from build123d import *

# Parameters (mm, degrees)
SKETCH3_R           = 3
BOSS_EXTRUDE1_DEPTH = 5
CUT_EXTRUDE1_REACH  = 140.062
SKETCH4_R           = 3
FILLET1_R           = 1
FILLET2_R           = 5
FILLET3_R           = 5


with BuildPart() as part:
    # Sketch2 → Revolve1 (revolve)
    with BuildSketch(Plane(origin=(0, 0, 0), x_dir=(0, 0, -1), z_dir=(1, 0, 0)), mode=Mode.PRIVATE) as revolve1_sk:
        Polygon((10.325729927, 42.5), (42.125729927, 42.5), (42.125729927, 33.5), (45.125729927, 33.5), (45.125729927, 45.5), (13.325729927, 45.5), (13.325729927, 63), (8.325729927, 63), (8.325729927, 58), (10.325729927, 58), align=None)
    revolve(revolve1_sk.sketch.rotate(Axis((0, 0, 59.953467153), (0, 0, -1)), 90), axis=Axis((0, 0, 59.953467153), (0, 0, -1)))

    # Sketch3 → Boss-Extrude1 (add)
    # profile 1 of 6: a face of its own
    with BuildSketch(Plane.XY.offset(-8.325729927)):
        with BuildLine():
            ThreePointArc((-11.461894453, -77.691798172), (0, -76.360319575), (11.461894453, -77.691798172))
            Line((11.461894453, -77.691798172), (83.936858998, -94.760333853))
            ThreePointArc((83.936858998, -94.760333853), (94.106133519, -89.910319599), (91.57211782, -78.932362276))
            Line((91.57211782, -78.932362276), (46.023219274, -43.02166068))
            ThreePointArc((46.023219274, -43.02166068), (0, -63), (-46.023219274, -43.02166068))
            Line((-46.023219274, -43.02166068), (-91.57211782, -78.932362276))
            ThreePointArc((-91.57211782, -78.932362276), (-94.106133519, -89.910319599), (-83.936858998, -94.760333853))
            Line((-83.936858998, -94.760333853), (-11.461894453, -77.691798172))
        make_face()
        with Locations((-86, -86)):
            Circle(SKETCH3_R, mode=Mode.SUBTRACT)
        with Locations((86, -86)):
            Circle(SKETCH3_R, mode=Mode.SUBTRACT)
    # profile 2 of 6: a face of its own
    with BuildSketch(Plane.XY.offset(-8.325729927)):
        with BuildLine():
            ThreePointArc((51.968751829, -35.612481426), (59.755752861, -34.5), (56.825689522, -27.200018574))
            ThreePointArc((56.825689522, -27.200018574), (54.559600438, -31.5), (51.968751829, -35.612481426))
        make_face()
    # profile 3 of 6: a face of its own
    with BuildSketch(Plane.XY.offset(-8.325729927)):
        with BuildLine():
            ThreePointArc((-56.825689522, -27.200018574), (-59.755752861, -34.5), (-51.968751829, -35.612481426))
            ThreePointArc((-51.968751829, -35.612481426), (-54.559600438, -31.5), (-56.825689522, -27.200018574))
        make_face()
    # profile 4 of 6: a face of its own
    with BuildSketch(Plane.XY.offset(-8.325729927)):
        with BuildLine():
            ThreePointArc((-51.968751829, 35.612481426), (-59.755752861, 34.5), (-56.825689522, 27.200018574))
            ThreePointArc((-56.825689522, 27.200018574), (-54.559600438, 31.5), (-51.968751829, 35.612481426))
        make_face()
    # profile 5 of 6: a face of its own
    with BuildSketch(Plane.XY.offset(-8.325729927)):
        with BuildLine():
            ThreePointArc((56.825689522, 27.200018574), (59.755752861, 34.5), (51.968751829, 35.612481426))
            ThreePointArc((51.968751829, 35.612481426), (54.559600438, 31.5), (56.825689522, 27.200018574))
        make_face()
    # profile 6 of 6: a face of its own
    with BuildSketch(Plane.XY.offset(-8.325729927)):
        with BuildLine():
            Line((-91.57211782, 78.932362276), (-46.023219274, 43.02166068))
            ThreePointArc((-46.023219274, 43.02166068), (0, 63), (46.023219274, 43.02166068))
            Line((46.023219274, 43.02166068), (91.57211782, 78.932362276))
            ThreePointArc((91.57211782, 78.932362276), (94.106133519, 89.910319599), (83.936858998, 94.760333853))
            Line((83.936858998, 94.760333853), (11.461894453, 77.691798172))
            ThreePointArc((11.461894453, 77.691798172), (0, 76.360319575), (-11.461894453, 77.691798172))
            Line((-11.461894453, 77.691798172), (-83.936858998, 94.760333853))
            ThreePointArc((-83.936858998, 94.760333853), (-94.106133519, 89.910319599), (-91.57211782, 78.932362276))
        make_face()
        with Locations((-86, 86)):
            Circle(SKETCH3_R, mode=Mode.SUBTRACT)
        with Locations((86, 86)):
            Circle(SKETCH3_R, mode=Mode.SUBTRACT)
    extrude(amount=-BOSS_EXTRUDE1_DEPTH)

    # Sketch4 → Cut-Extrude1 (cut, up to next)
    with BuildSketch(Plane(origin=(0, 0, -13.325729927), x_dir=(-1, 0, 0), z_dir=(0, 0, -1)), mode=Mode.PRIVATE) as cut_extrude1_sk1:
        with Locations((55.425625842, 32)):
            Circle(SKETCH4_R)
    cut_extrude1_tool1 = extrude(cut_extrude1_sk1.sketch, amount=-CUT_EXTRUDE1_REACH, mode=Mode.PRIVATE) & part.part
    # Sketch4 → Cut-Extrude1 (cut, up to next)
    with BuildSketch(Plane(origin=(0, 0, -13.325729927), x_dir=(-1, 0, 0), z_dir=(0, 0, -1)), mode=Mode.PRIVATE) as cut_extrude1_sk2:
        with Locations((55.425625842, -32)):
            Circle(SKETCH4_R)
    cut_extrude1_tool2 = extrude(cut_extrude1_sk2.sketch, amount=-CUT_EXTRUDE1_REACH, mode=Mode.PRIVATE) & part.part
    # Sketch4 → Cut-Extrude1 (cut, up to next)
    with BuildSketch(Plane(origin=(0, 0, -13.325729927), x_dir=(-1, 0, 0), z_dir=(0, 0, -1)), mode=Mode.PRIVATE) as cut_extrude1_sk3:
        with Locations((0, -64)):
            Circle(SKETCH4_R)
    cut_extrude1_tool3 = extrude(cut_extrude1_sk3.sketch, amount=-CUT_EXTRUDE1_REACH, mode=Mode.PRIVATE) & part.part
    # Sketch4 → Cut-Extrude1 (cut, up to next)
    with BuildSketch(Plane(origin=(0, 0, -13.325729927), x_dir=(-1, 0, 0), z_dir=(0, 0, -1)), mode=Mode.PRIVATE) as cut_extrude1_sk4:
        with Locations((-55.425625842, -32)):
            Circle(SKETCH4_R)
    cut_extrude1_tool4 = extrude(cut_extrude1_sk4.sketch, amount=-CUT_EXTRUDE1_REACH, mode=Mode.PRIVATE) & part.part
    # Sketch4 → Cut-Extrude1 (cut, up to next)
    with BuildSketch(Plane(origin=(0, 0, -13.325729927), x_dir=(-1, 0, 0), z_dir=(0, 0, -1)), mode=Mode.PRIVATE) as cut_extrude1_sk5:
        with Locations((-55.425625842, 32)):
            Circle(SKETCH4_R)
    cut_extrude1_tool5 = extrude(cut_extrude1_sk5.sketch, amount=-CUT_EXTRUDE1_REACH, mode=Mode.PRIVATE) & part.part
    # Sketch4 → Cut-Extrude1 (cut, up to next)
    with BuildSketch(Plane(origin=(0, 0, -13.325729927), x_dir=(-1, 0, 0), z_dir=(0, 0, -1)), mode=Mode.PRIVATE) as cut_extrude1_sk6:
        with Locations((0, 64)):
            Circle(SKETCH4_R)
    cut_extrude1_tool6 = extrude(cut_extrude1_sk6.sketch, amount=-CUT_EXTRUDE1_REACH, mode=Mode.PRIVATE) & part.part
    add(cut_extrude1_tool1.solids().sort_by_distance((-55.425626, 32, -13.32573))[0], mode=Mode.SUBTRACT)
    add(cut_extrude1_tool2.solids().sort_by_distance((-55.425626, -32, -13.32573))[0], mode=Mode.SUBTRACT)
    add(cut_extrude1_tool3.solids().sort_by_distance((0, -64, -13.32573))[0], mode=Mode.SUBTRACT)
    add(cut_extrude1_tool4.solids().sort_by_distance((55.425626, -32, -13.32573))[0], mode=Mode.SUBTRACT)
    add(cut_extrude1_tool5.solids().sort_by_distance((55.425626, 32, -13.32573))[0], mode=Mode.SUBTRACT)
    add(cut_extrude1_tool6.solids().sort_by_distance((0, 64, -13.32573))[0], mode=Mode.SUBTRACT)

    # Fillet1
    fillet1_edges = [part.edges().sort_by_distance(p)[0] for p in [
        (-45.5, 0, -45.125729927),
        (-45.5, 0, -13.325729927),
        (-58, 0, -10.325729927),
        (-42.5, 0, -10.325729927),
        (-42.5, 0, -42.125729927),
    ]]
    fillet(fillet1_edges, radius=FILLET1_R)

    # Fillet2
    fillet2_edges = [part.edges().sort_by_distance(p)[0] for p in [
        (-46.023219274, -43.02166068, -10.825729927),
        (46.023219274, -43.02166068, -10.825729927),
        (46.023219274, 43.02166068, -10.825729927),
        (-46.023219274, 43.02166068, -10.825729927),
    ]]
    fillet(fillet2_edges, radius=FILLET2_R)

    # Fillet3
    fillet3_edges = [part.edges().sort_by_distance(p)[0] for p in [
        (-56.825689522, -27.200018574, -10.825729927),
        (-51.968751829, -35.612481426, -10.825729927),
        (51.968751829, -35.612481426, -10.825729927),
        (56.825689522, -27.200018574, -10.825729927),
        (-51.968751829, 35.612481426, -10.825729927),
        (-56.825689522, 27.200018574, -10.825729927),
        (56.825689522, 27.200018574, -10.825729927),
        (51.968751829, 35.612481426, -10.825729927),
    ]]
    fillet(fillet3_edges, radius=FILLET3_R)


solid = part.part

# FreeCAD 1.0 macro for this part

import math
import FreeCAD as App
import Part
import Sketcher
Q = App.Units.Quantity


def edges_at(feature, points):
    """Names of the edges that pass closest to the given points."""
    edges = feature.Shape.Edges
    near = lambda p: min(range(len(edges)), key=lambda i: edges[i].distToShape(Part.Vertex(*p))[0])
    return sorted({f"Edge{near(p) + 1}" for p in points})

doc = App.newDocument("Part")
body = doc.addObject("PartDesign::Body", "Body")

sketch1 = body.newObject("Sketcher::SketchObject", "Sketch")
sketch1.AttachmentSupport = (doc.getObject("YZ_Plane"), [""])
sketch1.MapMode = "FlatFace"
sketch1.addGeometry(Part.LineSegment(App.Vector(42.5, -10.3, 0), App.Vector(42.5, -42.1, 0)), False)
sketch1.addGeometry(Part.LineSegment(App.Vector(42.5, -42.1, 0), App.Vector(33.5, -42.1, 0)), False)
sketch1.addGeometry(Part.LineSegment(App.Vector(33.5, -42.1, 0), App.Vector(33.5, -45.1, 0)), False)
sketch1.addGeometry(Part.LineSegment(App.Vector(33.5, -45.1, 0), App.Vector(45.5, -45.1, 0)), False)
sketch1.addGeometry(Part.LineSegment(App.Vector(45.5, -45.1, 0), App.Vector(45.5, -13.3, 0)), False)
sketch1.addGeometry(Part.LineSegment(App.Vector(45.5, -13.3, 0), App.Vector(63, -13.3, 0)), False)
sketch1.addGeometry(Part.LineSegment(App.Vector(63, -13.3, 0), App.Vector(63, -8.3, 0)), False)
sketch1.addGeometry(Part.LineSegment(App.Vector(63, -8.3, 0), App.Vector(58, -8.3, 0)), False)
sketch1.addGeometry(Part.LineSegment(App.Vector(58, -8.3, 0), App.Vector(58, -10.3, 0)), False)
sketch1.addGeometry(Part.LineSegment(App.Vector(58, -10.3, 0), App.Vector(42.5, -10.3, 0)), False)
sketch1.addConstraint(Sketcher.Constraint("Coincident", 0, 2, 1, 1))
sketch1.addConstraint(Sketcher.Constraint("Coincident", 1, 2, 2, 1))
sketch1.addConstraint(Sketcher.Constraint("Coincident", 2, 2, 3, 1))
sketch1.addConstraint(Sketcher.Constraint("Coincident", 3, 2, 4, 1))
sketch1.addConstraint(Sketcher.Constraint("Coincident", 4, 2, 5, 1))
sketch1.addConstraint(Sketcher.Constraint("Coincident", 5, 2, 6, 1))
sketch1.addConstraint(Sketcher.Constraint("Coincident", 6, 2, 7, 1))
sketch1.addConstraint(Sketcher.Constraint("Coincident", 7, 2, 8, 1))
sketch1.addConstraint(Sketcher.Constraint("Coincident", 8, 2, 9, 1))
sketch1.addConstraint(Sketcher.Constraint("Coincident", 9, 2, 0, 1))
sketch1.addConstraint(Sketcher.Constraint("Vertical", 0))
sketch1.addConstraint(Sketcher.Constraint("Horizontal", 1))
sketch1.addConstraint(Sketcher.Constraint("Vertical", 2))
sketch1.addConstraint(Sketcher.Constraint("Horizontal", 3))
sketch1.addConstraint(Sketcher.Constraint("Vertical", 4))
sketch1.addConstraint(Sketcher.Constraint("Horizontal", 5))
sketch1.addConstraint(Sketcher.Constraint("Vertical", 6))
sketch1.addConstraint(Sketcher.Constraint("Horizontal", 7))
sketch1.addConstraint(Sketcher.Constraint("Vertical", 8))
sketch1.addConstraint(Sketcher.Constraint("Horizontal", 9))
sketch1.addConstraint(Sketcher.Constraint("Equal", 0, 4))
sketch1.addConstraint(Sketcher.Constraint("Equal", 7, 6))
sketch1.addConstraint(Sketcher.Constraint("DistanceX", 1, 2, 1, 1, Q("9 mm")))
sketch1.addConstraint(Sketcher.Constraint("DistanceX", 3, 1, 3, 2, Q("12 mm")))
sketch1.addConstraint(Sketcher.Constraint("DistanceX", 7, 2, 7, 1, Q("5 mm")))
sketch1.addConstraint(Sketcher.Constraint("DistanceY", 2, 2, 2, 1, Q("3 mm")))
sketch1.addConstraint(Sketcher.Constraint("DistanceX", 5, 1, 5, 2, Q("17.5 mm")))
sketch1.addConstraint(Sketcher.Constraint("DistanceY", 0, 2, 0, 1, Q("31.8 mm")))
sketch1.addConstraint(Sketcher.Constraint("DistanceX", -1, 1, 5, 2, Q("63 mm")))
sketch1.addConstraint(Sketcher.Constraint("DistanceY", 0, 2, -1, 1, Q("42.12573 mm")))
revolution = body.newObject("PartDesign::Revolution", "Revolution")
revolution.Profile = sketch1
revolution.ReferenceAxis = (sketch1, ["V_Axis"])
revolution.Angle = 360

sketch2 = body.newObject("Sketcher::SketchObject", "Sketch001")
sketch2.AttachmentSupport = (doc.getObject("XY_Plane"), [""])
sketch2.MapMode = "FlatFace"
sketch2.AttachmentOffset = App.Placement(App.Vector(0, 0, -8.32573), App.Rotation())
sketch2.addGeometry(Part.ArcOfCircle(Part.Circle(App.Vector(0, -126.4, 0), App.Vector(0, 0, 1), 50), math.radians(77), math.radians(103)), False)
sketch2.addGeometry(Part.LineSegment(App.Vector(11.5, -77.7, 0), App.Vector(83.9, -94.8, 0)), False)
sketch2.addGeometry(Part.ArcOfCircle(Part.Circle(App.Vector(86, -86, 0), App.Vector(0, 0, 1), 9), math.radians(-103), math.radians(52)), False)
sketch2.addGeometry(Part.LineSegment(App.Vector(91.6, -78.9, 0), App.Vector(46, -43, 0)), False)
sketch2.addGeometry(Part.ArcOfCircle(Part.Circle(App.Vector(0, 0, 0), App.Vector(0, 0, 1), 63), math.radians(-137), math.radians(-43)), False)
sketch2.addGeometry(Part.LineSegment(App.Vector(-46, -43, 0), App.Vector(-91.6, -78.9, 0)), False)
sketch2.addGeometry(Part.ArcOfCircle(Part.Circle(App.Vector(-86, -86, 0), App.Vector(0, 0, 1), 9), math.radians(128), math.radians(283)), False)
sketch2.addGeometry(Part.LineSegment(App.Vector(-83.9, -94.8, 0), App.Vector(-11.5, -77.7, 0)), False)
sketch2.addGeometry(Part.Circle(App.Vector(-86, -86, 0), App.Vector(0, 0, 1), 3), False)
sketch2.addGeometry(Part.Circle(App.Vector(86, -86, 0), App.Vector(0, 0, 1), 3), False)
sketch2.addGeometry(Part.ArcOfCircle(Part.Circle(App.Vector(55.4, -32, 0), App.Vector(0, 0, 1), 5), math.radians(-134), math.radians(74)), False)
sketch2.addGeometry(Part.ArcOfCircle(Part.Circle(App.Vector(0, 0, 0), App.Vector(0, 0, 1), 63), math.radians(-34.42), math.radians(-25.58)), False)
sketch2.addGeometry(Part.ArcOfCircle(Part.Circle(App.Vector(-55.4, -32, 0), App.Vector(0, 0, 1), 5), math.radians(106), math.radians(314)), False)
sketch2.addGeometry(Part.ArcOfCircle(Part.Circle(App.Vector(0, 0, 0), App.Vector(0, 0, 1), 63), math.radians(-154.42), math.radians(-145.58)), False)
sketch2.addGeometry(Part.ArcOfCircle(Part.Circle(App.Vector(-55.4, 32, 0), App.Vector(0, 0, 1), 5), math.radians(46), math.radians(254)), False)
sketch2.addGeometry(Part.ArcOfCircle(Part.Circle(App.Vector(0, 0, 0), App.Vector(0, 0, 1), 63), math.radians(145.58), math.radians(154.42)), False)
sketch2.addGeometry(Part.ArcOfCircle(Part.Circle(App.Vector(55.4, 32, 0), App.Vector(0, 0, 1), 5), math.radians(-74), math.radians(134)), False)
sketch2.addGeometry(Part.ArcOfCircle(Part.Circle(App.Vector(0, 0, 0), App.Vector(0, 0, 1), 63), math.radians(25.58), math.radians(34.42)), False)
sketch2.addGeometry(Part.LineSegment(App.Vector(-91.6, 78.9, 0), App.Vector(-46, 43, 0)), False)
sketch2.addGeometry(Part.ArcOfCircle(Part.Circle(App.Vector(0, 0, 0), App.Vector(0, 0, 1), 63), math.radians(43), math.radians(137)), False)
sketch2.addGeometry(Part.LineSegment(App.Vector(46, 43, 0), App.Vector(91.6, 78.9, 0)), False)
sketch2.addGeometry(Part.ArcOfCircle(Part.Circle(App.Vector(86, 86, 0), App.Vector(0, 0, 1), 9), math.radians(-52), math.radians(103)), False)
sketch2.addGeometry(Part.LineSegment(App.Vector(83.9, 94.8, 0), App.Vector(11.5, 77.7, 0)), False)
sketch2.addGeometry(Part.ArcOfCircle(Part.Circle(App.Vector(0, 126.4, 0), App.Vector(0, 0, 1), 50), math.radians(-103), math.radians(-77)), False)
sketch2.addGeometry(Part.LineSegment(App.Vector(-11.5, 77.7, 0), App.Vector(-83.9, 94.8, 0)), False)
sketch2.addGeometry(Part.ArcOfCircle(Part.Circle(App.Vector(-86, 86, 0), App.Vector(0, 0, 1), 9), math.radians(77), math.radians(232)), False)
sketch2.addGeometry(Part.Circle(App.Vector(-86, 86, 0), App.Vector(0, 0, 1), 3), False)
sketch2.addGeometry(Part.Circle(App.Vector(86, 86, 0), App.Vector(0, 0, 1), 3), False)
sketch2.addConstraint(Sketcher.Constraint("Tangent", 0, 1, 1, 1))
sketch2.addConstraint(Sketcher.Constraint("Tangent", 1, 2, 2, 1))
sketch2.addConstraint(Sketcher.Constraint("Tangent", 2, 2, 3, 1))
sketch2.addConstraint(Sketcher.Constraint("Coincident", 3, 2, 4, 2))
sketch2.addConstraint(Sketcher.Constraint("Coincident", 4, 1, 5, 1))
sketch2.addConstraint(Sketcher.Constraint("Tangent", 5, 2, 6, 1))
sketch2.addConstraint(Sketcher.Constraint("Tangent", 6, 2, 7, 1))
sketch2.addConstraint(Sketcher.Constraint("Tangent", 7, 2, 0, 2))
sketch2.addConstraint(Sketcher.Constraint("Coincident", 10, 1, 11, 1))
sketch2.addConstraint(Sketcher.Constraint("Coincident", 11, 2, 10, 2))
sketch2.addConstraint(Sketcher.Constraint("Coincident", 12, 1, 13, 1))
sketch2.addConstraint(Sketcher.Constraint("Coincident", 13, 2, 12, 2))
sketch2.addConstraint(Sketcher.Constraint("Coincident", 14, 1, 15, 1))
sketch2.addConstraint(Sketcher.Constraint("Coincident", 15, 2, 14, 2))
sketch2.addConstraint(Sketcher.Constraint("Coincident", 16, 1, 17, 1))
sketch2.addConstraint(Sketcher.Constraint("Coincident", 17, 2, 16, 2))
sketch2.addConstraint(Sketcher.Constraint("Coincident", 18, 2, 19, 2))
sketch2.addConstraint(Sketcher.Constraint("Coincident", 19, 1, 20, 1))
sketch2.addConstraint(Sketcher.Constraint("Tangent", 20, 2, 21, 1))
sketch2.addConstraint(Sketcher.Constraint("Tangent", 21, 2, 22, 1))
sketch2.addConstraint(Sketcher.Constraint("Tangent", 22, 2, 23, 2))
sketch2.addConstraint(Sketcher.Constraint("Tangent", 23, 1, 24, 1))
sketch2.addConstraint(Sketcher.Constraint("Tangent", 24, 2, 25, 1))
sketch2.addConstraint(Sketcher.Constraint("Tangent", 25, 2, 18, 1))
sketch2.addConstraint(Sketcher.Constraint("Coincident", 4, 3, -1, 1))
sketch2.addConstraint(Sketcher.Constraint("Coincident", 11, 3, -1, 1))
sketch2.addConstraint(Sketcher.Constraint("Coincident", 13, 3, -1, 1))
sketch2.addConstraint(Sketcher.Constraint("Coincident", 15, 3, -1, 1))
sketch2.addConstraint(Sketcher.Constraint("Coincident", 17, 3, -1, 1))
sketch2.addConstraint(Sketcher.Constraint("Coincident", 19, 3, -1, 1))
sketch2.addConstraint(Sketcher.Constraint("Coincident", 8, 3, 6, 3))
sketch2.addConstraint(Sketcher.Constraint("Coincident", 9, 3, 2, 3))
sketch2.addConstraint(Sketcher.Constraint("Coincident", 26, 3, 25, 3))
sketch2.addConstraint(Sketcher.Constraint("Coincident", 27, 3, 21, 3))
sketch2.addConstraint(Sketcher.Constraint("Equal", 2, 6))
sketch2.addConstraint(Sketcher.Constraint("Equal", 8, 9))
sketch2.addConstraint(Sketcher.Constraint("Equal", 4, 11))
sketch2.addConstraint(Sketcher.Constraint("Equal", 10, 12))
sketch2.addConstraint(Sketcher.Constraint("Equal", 11, 13))
sketch2.addConstraint(Sketcher.Constraint("Equal", 12, 14))
sketch2.addConstraint(Sketcher.Constraint("Equal", 13, 15))
sketch2.addConstraint(Sketcher.Constraint("Equal", 14, 16))
sketch2.addConstraint(Sketcher.Constraint("Equal", 15, 17))
sketch2.addConstraint(Sketcher.Constraint("Equal", 17, 19))
sketch2.addConstraint(Sketcher.Constraint("Equal", 6, 21))
sketch2.addConstraint(Sketcher.Constraint("Equal", 0, 23))
sketch2.addConstraint(Sketcher.Constraint("Equal", 21, 25))
sketch2.addConstraint(Sketcher.Constraint("Equal", 9, 26))
sketch2.addConstraint(Sketcher.Constraint("Equal", 26, 27))
sketch2.addConstraint(Sketcher.Constraint("Symmetric", 10, 3, 14, 3, -1, 1))
sketch2.addConstraint(Sketcher.Constraint("Symmetric", 12, 3, 16, 3, -1, 1))
sketch2.addConstraint(Sketcher.Constraint("Symmetric", 6, 3, 21, 3, -1, 1))
sketch2.addConstraint(Sketcher.Constraint("Symmetric", 0, 3, 23, 3, -1, 1))
sketch2.addConstraint(Sketcher.Constraint("Symmetric", 2, 3, 25, 3, -1, 1))
sketch2.addConstraint(Sketcher.Constraint("Symmetric", 2, 3, 6, 3, -2))
sketch2.addConstraint(Sketcher.Constraint("Symmetric", 10, 3, 12, 3, -2))
sketch2.addConstraint(Sketcher.Constraint("PointOnObject", 0, 3, -2))
sketch2.addConstraint(Sketcher.Constraint("Parallel", 3, 18))
sketch2.addConstraint(Sketcher.Constraint("Parallel", 5, 20))
sketch2.addConstraint(Sketcher.Constraint("Horizontal", 3, 2, 4, 1))
sketch2.addConstraint(Sketcher.Constraint("Diameter", 8, Q("6 mm")))
sketch2.addConstraint(Sketcher.Constraint("Radius", 0, Q("50 mm")))
sketch2.addConstraint(Sketcher.Constraint("Radius", 2, Q("9 mm")))
sketch2.addConstraint(Sketcher.Constraint("Radius", 4, Q("63 mm")))
sketch2.addConstraint(Sketcher.Constraint("Radius", 10, Q("5 mm")))
sketch2.addConstraint(Sketcher.Constraint("DistanceX", -1, 1, 2, 3, Q("86 mm")))
sketch2.addConstraint(Sketcher.Constraint("DistanceY", 2, 3, -1, 1, Q("86 mm")))
sketch2.addConstraint(Sketcher.Constraint("DistanceY", 10, 3, -1, 1, Q("32 mm")))
sketch2.addConstraint(Sketcher.Constraint("DistanceY", 0, 1, -1, 1, Q("77.691798 mm")))
sketch2.addConstraint(Sketcher.Constraint("DistanceX", 3, 2, 2, 2, Q("45.548899 mm")))
sketch2.addConstraint(Sketcher.Constraint("DistanceX", -1, 1, 10, 1, Q("51.968752 mm")))
pad1 = body.newObject("PartDesign::Pad", "Pad")
pad1.Profile = sketch2
pad1.Length = 5
pad1.Reversed = True

sketch3 = body.newObject("Sketcher::SketchObject", "Sketch002")
sketch3.AttachmentSupport = (doc.getObject("XY_Plane"), [""])
sketch3.MapMode = "FlatFace"
sketch3.AttachmentOffset = App.Placement(App.Vector(0, 0, -13.32573), App.Rotation())
sketch3.addGeometry(Part.Circle(App.Vector(-55.4, 32, 0), App.Vector(0, 0, 1), 3), False)
sketch3.addConstraint(Sketcher.Constraint("Diameter", 0, Q("6 mm")))
sketch3.addConstraint(Sketcher.Constraint("DistanceY", -1, 1, 0, 3, Q("32 mm")))
sketch3.addConstraint(Sketcher.Constraint("DistanceX", 0, 3, -1, 1, Q("55.425626 mm")))
pocket1 = body.newObject("PartDesign::Pocket", "Pocket")
pocket1.Profile = sketch3
pocket1.Type = "UpToFirst"
pocket1.Reversed = True

sketch4 = body.newObject("Sketcher::SketchObject", "Sketch003")
sketch4.AttachmentSupport = (doc.getObject("XY_Plane"), [""])
sketch4.MapMode = "FlatFace"
sketch4.AttachmentOffset = App.Placement(App.Vector(0, 0, -13.32573), App.Rotation())
sketch4.addGeometry(Part.Circle(App.Vector(-55.4, -32, 0), App.Vector(0, 0, 1), 3), False)
sketch4.addConstraint(Sketcher.Constraint("Diameter", 0, Q("6 mm")))
sketch4.addConstraint(Sketcher.Constraint("DistanceY", 0, 3, -1, 1, Q("32 mm")))
sketch4.addConstraint(Sketcher.Constraint("DistanceX", 0, 3, -1, 1, Q("55.425626 mm")))
pocket2 = body.newObject("PartDesign::Pocket", "Pocket001")
pocket2.Profile = sketch4
pocket2.Type = "UpToFirst"
pocket2.Reversed = True

sketch5 = body.newObject("Sketcher::SketchObject", "Sketch004")
sketch5.AttachmentSupport = (doc.getObject("XY_Plane"), [""])
sketch5.MapMode = "FlatFace"
sketch5.AttachmentOffset = App.Placement(App.Vector(0, 0, -13.32573), App.Rotation())
sketch5.addGeometry(Part.Circle(App.Vector(0, -64, 0), App.Vector(0, 0, 1), 3), False)
sketch5.addConstraint(Sketcher.Constraint("PointOnObject", 0, 3, -2))
sketch5.addConstraint(Sketcher.Constraint("Diameter", 0, Q("6 mm")))
sketch5.addConstraint(Sketcher.Constraint("DistanceY", 0, 3, -1, 1, Q("64 mm")))
pocket3 = body.newObject("PartDesign::Pocket", "Pocket002")
pocket3.Profile = sketch5
pocket3.Type = "UpToFirst"
pocket3.Reversed = True

sketch6 = body.newObject("Sketcher::SketchObject", "Sketch005")
sketch6.AttachmentSupport = (doc.getObject("XY_Plane"), [""])
sketch6.MapMode = "FlatFace"
sketch6.AttachmentOffset = App.Placement(App.Vector(0, 0, -13.32573), App.Rotation())
sketch6.addGeometry(Part.Circle(App.Vector(55.4, -32, 0), App.Vector(0, 0, 1), 3), False)
sketch6.addConstraint(Sketcher.Constraint("Diameter", 0, Q("6 mm")))
sketch6.addConstraint(Sketcher.Constraint("DistanceY", 0, 3, -1, 1, Q("32 mm")))
sketch6.addConstraint(Sketcher.Constraint("DistanceX", -1, 1, 0, 3, Q("55.425626 mm")))
pocket4 = body.newObject("PartDesign::Pocket", "Pocket003")
pocket4.Profile = sketch6
pocket4.Type = "UpToFirst"
pocket4.Reversed = True

sketch7 = body.newObject("Sketcher::SketchObject", "Sketch006")
sketch7.AttachmentSupport = (doc.getObject("XY_Plane"), [""])
sketch7.MapMode = "FlatFace"
sketch7.AttachmentOffset = App.Placement(App.Vector(0, 0, -13.32573), App.Rotation())
sketch7.addGeometry(Part.Circle(App.Vector(55.4, 32, 0), App.Vector(0, 0, 1), 3), False)
sketch7.addConstraint(Sketcher.Constraint("Diameter", 0, Q("6 mm")))
sketch7.addConstraint(Sketcher.Constraint("DistanceY", -1, 1, 0, 3, Q("32 mm")))
sketch7.addConstraint(Sketcher.Constraint("DistanceX", -1, 1, 0, 3, Q("55.425626 mm")))
pocket5 = body.newObject("PartDesign::Pocket", "Pocket004")
pocket5.Profile = sketch7
pocket5.Type = "UpToFirst"
pocket5.Reversed = True

sketch8 = body.newObject("Sketcher::SketchObject", "Sketch007")
sketch8.AttachmentSupport = (doc.getObject("XY_Plane"), [""])
sketch8.MapMode = "FlatFace"
sketch8.AttachmentOffset = App.Placement(App.Vector(0, 0, -13.32573), App.Rotation())
sketch8.addGeometry(Part.Circle(App.Vector(0, 64, 0), App.Vector(0, 0, 1), 3), False)
sketch8.addConstraint(Sketcher.Constraint("PointOnObject", 0, 3, -2))
sketch8.addConstraint(Sketcher.Constraint("Diameter", 0, Q("6 mm")))
sketch8.addConstraint(Sketcher.Constraint("DistanceY", -1, 1, 0, 3, Q("64 mm")))
pocket6 = body.newObject("PartDesign::Pocket", "Pocket005")
pocket6.Profile = sketch8
pocket6.Type = "UpToFirst"
pocket6.Reversed = True
doc.recompute()

fillet = body.newObject("PartDesign::Fillet", "Fillet")
fillet.Base = (pocket6, edges_at(pocket6, [
    (-45.5, 0, -45.126),
    (-45.5, 0, -13.326),
    (-58, 0, -10.326),
    (-42.5, 0, -10.326),
    (-42.5, 0, -42.126),
]))
fillet.Radius = 1
doc.recompute()

fillet2 = body.newObject("PartDesign::Fillet", "Fillet001")
fillet2.Base = (fillet, edges_at(fillet, [
    (-46.023, -43.022, -10.826),
    (46.023, -43.022, -10.826),
    (46.023, 43.022, -10.826),
    (-46.023, 43.022, -10.826),
]))
fillet2.Radius = 5
doc.recompute()

fillet3 = body.newObject("PartDesign::Fillet", "Fillet002")
fillet3.Base = (fillet2, edges_at(fillet2, [
    (-56.826, -27.2, -10.826),
    (-51.969, -35.612, -10.826),
    (51.969, -35.612, -10.826),
    (56.826, -27.2, -10.826),
    (-51.969, 35.612, -10.826),
    (-56.826, 27.2, -10.826),
    (56.826, 27.2, -10.826),
    (51.969, 35.612, -10.826),
]))
fillet3.Radius = 5

doc.recompute()
